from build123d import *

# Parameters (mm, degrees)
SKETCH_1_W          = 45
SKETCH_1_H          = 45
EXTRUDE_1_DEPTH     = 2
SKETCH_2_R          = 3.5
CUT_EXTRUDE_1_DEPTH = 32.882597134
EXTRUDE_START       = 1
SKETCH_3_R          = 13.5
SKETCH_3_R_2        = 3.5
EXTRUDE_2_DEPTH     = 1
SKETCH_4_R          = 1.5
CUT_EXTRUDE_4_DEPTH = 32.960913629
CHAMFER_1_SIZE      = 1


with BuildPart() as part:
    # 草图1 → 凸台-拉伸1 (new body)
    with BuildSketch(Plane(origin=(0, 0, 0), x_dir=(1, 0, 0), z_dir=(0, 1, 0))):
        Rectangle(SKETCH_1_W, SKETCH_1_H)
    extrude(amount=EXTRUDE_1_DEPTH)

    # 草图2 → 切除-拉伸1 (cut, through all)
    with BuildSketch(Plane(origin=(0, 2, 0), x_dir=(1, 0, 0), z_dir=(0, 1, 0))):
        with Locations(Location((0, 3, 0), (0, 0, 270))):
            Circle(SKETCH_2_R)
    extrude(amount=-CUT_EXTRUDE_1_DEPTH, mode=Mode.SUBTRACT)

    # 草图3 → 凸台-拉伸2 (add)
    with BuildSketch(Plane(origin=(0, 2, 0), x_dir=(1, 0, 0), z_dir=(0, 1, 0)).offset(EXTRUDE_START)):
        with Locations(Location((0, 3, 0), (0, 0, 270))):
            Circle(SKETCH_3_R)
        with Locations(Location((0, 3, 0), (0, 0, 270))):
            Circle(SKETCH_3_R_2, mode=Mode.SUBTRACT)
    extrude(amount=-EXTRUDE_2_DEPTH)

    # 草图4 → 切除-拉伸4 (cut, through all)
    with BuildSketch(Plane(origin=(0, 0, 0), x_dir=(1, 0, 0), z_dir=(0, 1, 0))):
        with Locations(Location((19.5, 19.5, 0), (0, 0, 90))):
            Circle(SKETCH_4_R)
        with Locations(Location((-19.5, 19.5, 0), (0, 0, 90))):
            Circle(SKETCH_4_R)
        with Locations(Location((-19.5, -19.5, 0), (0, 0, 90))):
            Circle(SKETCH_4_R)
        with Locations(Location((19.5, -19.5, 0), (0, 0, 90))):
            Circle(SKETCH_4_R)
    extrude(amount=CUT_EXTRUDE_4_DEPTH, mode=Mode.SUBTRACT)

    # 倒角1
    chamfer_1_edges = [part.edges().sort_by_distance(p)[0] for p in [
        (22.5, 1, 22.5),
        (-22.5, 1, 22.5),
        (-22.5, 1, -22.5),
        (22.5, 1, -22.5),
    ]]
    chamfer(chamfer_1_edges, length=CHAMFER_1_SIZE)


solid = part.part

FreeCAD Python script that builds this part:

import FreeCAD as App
import Part
import Sketcher

V = App.Vector


def edges_at(feature, points):
    """Names of the edges that pass closest to the given points."""
    edges = feature.Shape.Edges
    near = lambda p: min(range(len(edges)), key=lambda i: edges[i].distToShape(Part.Vertex(*p))[0])
    return sorted({f"Edge{near(p) + 1}" for p in points})


def add_polygon(sketch, points):
    """Adds a closed chain of lines whose ends are joined by coincident constraints."""
    first, n = sketch.GeometryCount, len(points)
    for a, b in zip(points, points[1:] + points[:1]):
        sketch.addGeometry(Part.LineSegment(App.Vector(*a, 0), App.Vector(*b, 0)), False)
    for i in range(n):
        sketch.addConstraint(Sketcher.Constraint("Coincident", first + i, 2, first + (i + 1) % n, 1))

doc = App.newDocument("Part")
body = doc.addObject("PartDesign::Body", "Body")

sketch1 = body.newObject("Sketcher::SketchObject", "Sketch")
sketch1.AttachmentSupport = (doc.getObject("XZ_Plane"), [""])
sketch1.MapMode = "FlatFace"
add_polygon(sketch1, [(-22, -22), (-22, 22), (22, 22), (22, -22)])
sketch1.addConstraint(Sketcher.Constraint("Vertical", 0))
sketch1.addConstraint(Sketcher.Constraint("Horizontal", 1))
sketch1.addConstraint(Sketcher.Constraint("Vertical", 2))
sketch1.addConstraint(Sketcher.Constraint("Horizontal", 3))
sketch1.addConstraint(Sketcher.Constraint("Symmetric", 0, 2, 2, 2, -1, 1))
sketch1.addConstraint(Sketcher.Constraint("Equal", 3, 0))
sketch1.addConstraint(Sketcher.Constraint("DistanceX", 1, 1, 1, 2, 45.0))
pad1 = body.newObject("PartDesign::Pad", "Pad")
pad1.Profile = sketch1
pad1.Length = 2
pad1.Reversed = True

sketch2 = body.newObject("Sketcher::SketchObject", "Sketch001")
sketch2.AttachmentSupport = (doc.getObject("XZ_Plane"), [""])
sketch2.MapMode = "FlatFace"
sketch2.AttachmentOffset = App.Placement(V(0, 0, -2), App.Rotation())
sketch2.addGeometry(Part.Circle(V(0, -3, 0), V(0, 0, 1), 3.5), False)
sketch2.addConstraint(Sketcher.Constraint("PointOnObject", 0, 3, -2))
sketch2.addConstraint(Sketcher.Constraint("Diameter", 0, 7.0))
sketch2.addConstraint(Sketcher.Constraint("DistanceY", 0, 3, -1, 1, 3.0))
pocket1 = body.newObject("PartDesign::Pocket", "Pocket")
pocket1.Profile = sketch2
pocket1.Type = "ThroughAll"
pocket1.Reversed = True

sketch3 = body.newObject("Sketcher::SketchObject", "Sketch002")
sketch3.AttachmentSupport = (doc.getObject("XZ_Plane"), [""])
sketch3.MapMode = "FlatFace"
sketch3.AttachmentOffset = App.Placement(V(0, 0, -3), App.Rotation())
sketch3.addGeometry(Part.Circle(V(0, -3, 0), V(0, 0, 1), 13.5), False)
sketch3.addGeometry(Part.Circle(V(0, -3, 0), V(0, 0, 1), 3.5), False)
sketch3.addConstraint(Sketcher.Constraint("Coincident", 1, 3, 0, 3))
sketch3.addConstraint(Sketcher.Constraint("PointOnObject", 0, 3, -2))
sketch3.addConstraint(Sketcher.Constraint("Diameter", 0, 27.0))
sketch3.addConstraint(Sketcher.Constraint("Diameter", 1, 7.0))
sketch3.addConstraint(Sketcher.Constraint("DistanceY", 0, 3, -1, 1, 3.0))
pad2 = body.newObject("PartDesign::Pad", "Pad001")
pad2.Profile = sketch3
pad2.Length = 1

sketch4 = body.newObject("Sketcher::SketchObject", "Sketch003")
sketch4.AttachmentSupport = (doc.getObject("XZ_Plane"), [""])
sketch4.MapMode = "FlatFace"
sketch4.addGeometry(Part.Circle(V(19.5, -19.5, 0), V(0, 0, 1), 1.5), False)
sketch4.addGeometry(Part.Circle(V(-19.5, -19.5, 0), V(0, 0, 1), 1.5), False)
sketch4.addGeometry(Part.Circle(V(-19.5, 19.5, 0), V(0, 0, 1), 1.5), False)
sketch4.addGeometry(Part.Circle(V(19.5, 19.5, 0), V(0, 0, 1), 1.5), False)
sketch4.addConstraint(Sketcher.Constraint("Equal", 0, 1))
sketch4.addConstraint(Sketcher.Constraint("Equal", 1, 2))
sketch4.addConstraint(Sketcher.Constraint("Equal", 2, 3))
sketch4.addConstraint(Sketcher.Constraint("Symmetric", 0, 3, 2, 3, -1, 1))
sketch4.addConstraint(Sketcher.Constraint("Symmetric", 1, 3, 3, 3, -1, 1))
sketch4.addConstraint(Sketcher.Constraint("Symmetric", 0, 3, 1, 3, -2))
sketch4.addConstraint(Sketcher.Constraint("Diameter", 0, 3.0))
sketch4.addConstraint(Sketcher.Constraint("DistanceX", 1, 3, 0, 3, 39.0))
sketch4.addConstraint(Sketcher.Constraint("DistanceY", 1, 3, 2, 3, 39.0))
pocket2 = body.newObject("PartDesign::Pocket", "Pocket001")
pocket2.Profile = sketch4
pocket2.Type = "ThroughAll"
doc.recompute()

chamfer = body.newObject("PartDesign::Chamfer", "Chamfer")
chamfer.Base = (pocket2, edges_at(pocket2, [
    (22.5, 1, 22.5),
    (-22.5, 1, 22.5),
    (-22.5, 1, -22.5),
    (22.5, 1, -22.5),
]))
chamfer.Size = 1

doc.recompute()
